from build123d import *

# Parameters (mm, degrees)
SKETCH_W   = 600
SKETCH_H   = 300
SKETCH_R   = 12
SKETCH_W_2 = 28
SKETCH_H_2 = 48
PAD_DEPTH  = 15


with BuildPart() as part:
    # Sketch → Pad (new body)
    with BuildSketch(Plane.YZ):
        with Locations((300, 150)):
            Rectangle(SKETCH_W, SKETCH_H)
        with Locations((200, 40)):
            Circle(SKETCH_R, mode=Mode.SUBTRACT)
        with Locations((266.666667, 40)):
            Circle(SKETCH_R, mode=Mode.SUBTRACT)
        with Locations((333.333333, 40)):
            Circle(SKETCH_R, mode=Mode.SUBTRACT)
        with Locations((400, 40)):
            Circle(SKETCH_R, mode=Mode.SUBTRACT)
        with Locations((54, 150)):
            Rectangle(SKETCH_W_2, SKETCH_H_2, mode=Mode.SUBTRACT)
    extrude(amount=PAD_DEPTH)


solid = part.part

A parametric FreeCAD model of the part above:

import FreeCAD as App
import Part
import Sketcher

V = App.Vector
Q = App.Units.Quantity

doc = App.newDocument("Part")
body = doc.addObject("PartDesign::Body", "Body")

# Sketch on YZ plane
sketch1 = body.newObject("Sketcher::SketchObject", "Sketch")
sketch1.AttachmentSupport = (doc.getObject("YZ_Plane"), [""])
sketch1.MapMode = "FlatFace"
sketch1.addGeometry([
    Part.LineSegment(V(0, 300, 0), V(0, 0, 0)),  # 0
    Part.LineSegment(V(0, 0, 0), V(600, 0, 0)),  # 1
    Part.LineSegment(V(600, 0, 0), V(600, 300, 0)),  # 2
    Part.LineSegment(V(600, 300, 0), V(0, 300, 0)),  # 3
    Part.Circle(V(200, 40, 0), V(0, 0, 1), 12),  # 4
    Part.Circle(V(266.666667, 40, 0), V(0, 0, 1), 12),  # 5
    Part.Circle(V(333.333333, 40, 0), V(0, 0, 1), 12),  # 6
    Part.Circle(V(400, 40, 0), V(0, 0, 1), 12),  # 7
    Part.LineSegment(V(68, 126, 0), V(40, 126, 0)),  # 8
    Part.LineSegment(V(40, 126, 0), V(40, 174, 0)),  # 9
    Part.LineSegment(V(40, 174, 0), V(68, 174, 0)),  # 10
    Part.LineSegment(V(68, 174, 0), V(68, 126, 0)),  # 11
], False)
sketch1.addConstraint([
    Sketcher.Constraint("Coincident", 0, 2, 1, 1),
    Sketcher.Constraint("Coincident", 1, 2, 2, 1),
    Sketcher.Constraint("Coincident", 2, 2, 3, 1),
    Sketcher.Constraint("Coincident", 3, 2, 0, 1),
    Sketcher.Constraint("Coincident", 8, 2, 9, 1),
    Sketcher.Constraint("Coincident", 9, 2, 10, 1),
    Sketcher.Constraint("Coincident", 10, 2, 11, 1),
    Sketcher.Constraint("Coincident", 11, 2, 8, 1),
    Sketcher.Constraint("Vertical", 0),
    Sketcher.Constraint("Horizontal", 1),
    Sketcher.Constraint("Vertical", 2),
    Sketcher.Constraint("Horizontal", 3),
    Sketcher.Constraint("Horizontal", 8),
    Sketcher.Constraint("Vertical", 9),
    Sketcher.Constraint("Horizontal", 10),
    Sketcher.Constraint("Vertical", 11),
    Sketcher.Constraint("Coincident", 0, 2, -1, 1),
    Sketcher.Constraint("Equal", 4, 5),
    Sketcher.Constraint("Equal", 5, 6),
    Sketcher.Constraint("Equal", 6, 7),
    Sketcher.Constraint("Horizontal", 4, 3, 5, 3),
    Sketcher.Constraint("Horizontal", 5, 3, 6, 3),
    Sketcher.Constraint("Horizontal", 6, 3, 7, 3),
    Sketcher.Constraint("Diameter", 4, Q("24 mm")),
    Sketcher.Constraint("DistanceX", 1, 1, 1, 2, Q("600 mm")),
    Sketcher.Constraint("DistanceX", 8, 2, 8, 1, Q("28 mm")),
    Sketcher.Constraint("DistanceY", 0, 2, 0, 1, Q("300 mm")),
    Sketcher.Constraint("DistanceY", 9, 1, 9, 2, Q("48 mm")),
    Sketcher.Constraint("DistanceX", -1, 1, 4, 3, Q("200 mm")),
    Sketcher.Constraint("DistanceY", -1, 1, 4, 3, Q("40 mm")),
    Sketcher.Constraint("DistanceX", -1, 1, 7, 3, Q("400 mm")),
    Sketcher.Constraint("DistanceX", -1, 1, 8, 2, Q("40 mm")),
    Sketcher.Constraint("DistanceY", -1, 1, 8, 2, Q("126 mm")),
    Sketcher.Constraint("DistanceX", -1, 1, 5, 3, Q("266.666667 mm")),
    Sketcher.Constraint("DistanceX", -1, 1, 6, 3, Q("333.333333 mm")),
])
pad1 = body.newObject("PartDesign::Pad", "Pad")
pad1.Profile = sketch1
pad1.Length = 15

doc.recompute()
